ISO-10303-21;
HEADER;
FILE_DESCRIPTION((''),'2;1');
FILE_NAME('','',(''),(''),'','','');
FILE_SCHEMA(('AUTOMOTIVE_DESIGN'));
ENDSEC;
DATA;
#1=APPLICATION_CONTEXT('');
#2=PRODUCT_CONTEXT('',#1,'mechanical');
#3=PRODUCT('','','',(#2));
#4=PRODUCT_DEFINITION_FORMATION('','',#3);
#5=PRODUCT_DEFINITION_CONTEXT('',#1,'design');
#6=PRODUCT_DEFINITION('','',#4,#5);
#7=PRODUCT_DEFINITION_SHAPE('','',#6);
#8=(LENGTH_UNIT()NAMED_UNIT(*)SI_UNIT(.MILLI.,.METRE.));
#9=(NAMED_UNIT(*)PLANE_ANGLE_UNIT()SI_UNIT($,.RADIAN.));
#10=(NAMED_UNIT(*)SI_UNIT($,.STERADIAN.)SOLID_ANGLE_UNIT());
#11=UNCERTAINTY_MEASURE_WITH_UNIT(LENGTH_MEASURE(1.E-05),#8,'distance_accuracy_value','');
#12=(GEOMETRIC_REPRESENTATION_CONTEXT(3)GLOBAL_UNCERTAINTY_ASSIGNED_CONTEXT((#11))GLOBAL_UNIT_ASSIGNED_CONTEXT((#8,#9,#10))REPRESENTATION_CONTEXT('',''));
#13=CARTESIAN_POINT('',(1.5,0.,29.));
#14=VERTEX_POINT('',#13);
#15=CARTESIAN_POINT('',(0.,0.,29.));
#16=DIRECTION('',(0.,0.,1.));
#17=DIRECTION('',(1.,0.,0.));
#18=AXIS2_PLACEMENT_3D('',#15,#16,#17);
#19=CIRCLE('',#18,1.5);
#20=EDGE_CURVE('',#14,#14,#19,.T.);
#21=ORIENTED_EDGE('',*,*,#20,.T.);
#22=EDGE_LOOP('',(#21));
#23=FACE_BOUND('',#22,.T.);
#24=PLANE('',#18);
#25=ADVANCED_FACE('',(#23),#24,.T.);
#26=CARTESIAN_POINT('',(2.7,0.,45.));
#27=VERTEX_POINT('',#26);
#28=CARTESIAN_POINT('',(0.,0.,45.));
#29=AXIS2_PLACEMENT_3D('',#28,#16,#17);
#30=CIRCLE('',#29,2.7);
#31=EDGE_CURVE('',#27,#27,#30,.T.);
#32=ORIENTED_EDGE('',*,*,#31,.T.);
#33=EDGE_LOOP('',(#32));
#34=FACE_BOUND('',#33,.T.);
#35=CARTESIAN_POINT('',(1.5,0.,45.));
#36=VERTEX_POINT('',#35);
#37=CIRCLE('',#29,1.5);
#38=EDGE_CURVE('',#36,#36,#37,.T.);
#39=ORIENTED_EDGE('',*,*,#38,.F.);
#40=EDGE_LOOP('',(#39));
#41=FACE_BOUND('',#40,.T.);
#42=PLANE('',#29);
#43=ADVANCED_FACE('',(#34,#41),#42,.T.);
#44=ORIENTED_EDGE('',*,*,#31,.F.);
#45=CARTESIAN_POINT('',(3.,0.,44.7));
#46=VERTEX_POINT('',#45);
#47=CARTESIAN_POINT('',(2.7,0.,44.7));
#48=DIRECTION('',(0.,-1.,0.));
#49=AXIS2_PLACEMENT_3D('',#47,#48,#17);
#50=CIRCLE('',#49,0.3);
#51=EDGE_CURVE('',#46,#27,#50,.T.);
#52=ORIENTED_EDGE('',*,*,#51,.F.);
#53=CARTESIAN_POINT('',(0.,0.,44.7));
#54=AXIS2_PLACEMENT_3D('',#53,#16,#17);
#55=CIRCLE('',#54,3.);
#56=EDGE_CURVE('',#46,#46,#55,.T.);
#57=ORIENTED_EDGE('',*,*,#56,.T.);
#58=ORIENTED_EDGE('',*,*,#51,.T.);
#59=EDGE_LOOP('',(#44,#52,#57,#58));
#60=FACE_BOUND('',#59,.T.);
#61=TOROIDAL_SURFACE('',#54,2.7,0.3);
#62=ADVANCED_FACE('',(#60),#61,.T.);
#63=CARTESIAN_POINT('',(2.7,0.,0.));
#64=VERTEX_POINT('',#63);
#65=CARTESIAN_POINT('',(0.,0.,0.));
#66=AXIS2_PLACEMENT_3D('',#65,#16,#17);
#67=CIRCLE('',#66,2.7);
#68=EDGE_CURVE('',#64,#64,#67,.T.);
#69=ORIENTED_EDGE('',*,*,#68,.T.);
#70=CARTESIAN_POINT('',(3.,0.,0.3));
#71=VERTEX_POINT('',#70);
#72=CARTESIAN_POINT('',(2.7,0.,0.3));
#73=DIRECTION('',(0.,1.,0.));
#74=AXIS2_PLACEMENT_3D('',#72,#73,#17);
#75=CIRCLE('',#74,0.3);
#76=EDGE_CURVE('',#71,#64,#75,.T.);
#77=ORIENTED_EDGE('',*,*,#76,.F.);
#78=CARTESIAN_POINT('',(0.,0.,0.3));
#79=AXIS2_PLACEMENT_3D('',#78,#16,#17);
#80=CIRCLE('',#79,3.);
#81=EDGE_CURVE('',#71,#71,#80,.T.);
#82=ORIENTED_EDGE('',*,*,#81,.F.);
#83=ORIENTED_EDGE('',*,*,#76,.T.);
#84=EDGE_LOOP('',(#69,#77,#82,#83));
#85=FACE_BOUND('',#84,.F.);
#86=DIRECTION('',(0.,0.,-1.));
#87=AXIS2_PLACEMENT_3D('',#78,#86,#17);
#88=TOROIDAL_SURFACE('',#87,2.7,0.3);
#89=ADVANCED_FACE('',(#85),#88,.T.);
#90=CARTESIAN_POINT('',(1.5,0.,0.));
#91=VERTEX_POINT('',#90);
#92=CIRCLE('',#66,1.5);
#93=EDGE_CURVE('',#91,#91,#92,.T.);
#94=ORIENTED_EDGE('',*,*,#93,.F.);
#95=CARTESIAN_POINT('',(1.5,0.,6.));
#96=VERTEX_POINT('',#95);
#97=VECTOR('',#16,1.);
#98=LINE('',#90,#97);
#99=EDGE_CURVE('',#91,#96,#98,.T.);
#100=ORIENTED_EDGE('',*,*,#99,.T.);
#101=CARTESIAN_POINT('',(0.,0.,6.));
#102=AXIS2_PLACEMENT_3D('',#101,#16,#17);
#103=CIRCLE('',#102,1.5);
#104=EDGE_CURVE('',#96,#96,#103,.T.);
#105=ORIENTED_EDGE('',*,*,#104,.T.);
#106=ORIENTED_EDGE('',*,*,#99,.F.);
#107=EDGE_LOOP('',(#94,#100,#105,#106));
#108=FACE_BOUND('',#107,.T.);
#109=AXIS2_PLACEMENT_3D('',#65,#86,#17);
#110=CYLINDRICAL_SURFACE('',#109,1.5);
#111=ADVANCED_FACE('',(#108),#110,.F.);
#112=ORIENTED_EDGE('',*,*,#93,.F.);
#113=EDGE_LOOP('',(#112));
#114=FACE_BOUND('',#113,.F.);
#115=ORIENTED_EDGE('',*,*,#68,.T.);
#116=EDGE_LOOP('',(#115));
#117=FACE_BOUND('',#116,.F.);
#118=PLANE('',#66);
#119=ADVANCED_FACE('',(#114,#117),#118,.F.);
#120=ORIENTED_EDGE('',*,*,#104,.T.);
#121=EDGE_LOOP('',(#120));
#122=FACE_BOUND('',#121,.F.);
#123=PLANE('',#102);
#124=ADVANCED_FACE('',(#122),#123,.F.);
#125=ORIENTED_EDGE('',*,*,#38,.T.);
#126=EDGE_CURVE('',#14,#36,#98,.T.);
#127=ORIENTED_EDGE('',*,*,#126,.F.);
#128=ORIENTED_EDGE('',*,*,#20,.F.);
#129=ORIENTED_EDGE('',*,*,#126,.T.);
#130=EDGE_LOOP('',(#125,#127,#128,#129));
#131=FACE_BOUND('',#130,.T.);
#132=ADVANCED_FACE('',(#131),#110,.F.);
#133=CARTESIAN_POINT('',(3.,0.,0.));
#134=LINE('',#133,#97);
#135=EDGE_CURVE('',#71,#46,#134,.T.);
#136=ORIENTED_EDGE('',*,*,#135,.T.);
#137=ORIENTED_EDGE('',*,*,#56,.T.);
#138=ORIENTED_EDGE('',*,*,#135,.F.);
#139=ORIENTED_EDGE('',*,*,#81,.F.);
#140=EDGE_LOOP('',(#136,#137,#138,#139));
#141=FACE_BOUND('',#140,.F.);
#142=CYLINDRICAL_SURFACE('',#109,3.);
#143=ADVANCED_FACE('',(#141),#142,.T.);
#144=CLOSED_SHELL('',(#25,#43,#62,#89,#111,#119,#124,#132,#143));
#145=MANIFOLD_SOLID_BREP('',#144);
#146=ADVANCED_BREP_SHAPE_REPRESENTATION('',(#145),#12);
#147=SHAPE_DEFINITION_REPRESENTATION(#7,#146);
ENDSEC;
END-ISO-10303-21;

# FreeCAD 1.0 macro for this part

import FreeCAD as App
import Part
import Sketcher
from FreeCAD import Vector


def edges_at(feature, points):
    """Names of the edges that pass closest to the given points."""
    edges = feature.Shape.Edges
    near = lambda p: min(range(len(edges)), key=lambda i: edges[i].distToShape(Part.Vertex(*p))[0])
    return sorted({f"Edge{near(p) + 1}" for p in points})

doc = App.newDocument("Part")
body = doc.addObject("PartDesign::Body", "Body")

sketch1 = body.newObject("Sketcher::SketchObject", "Sketch")
sketch1.AttachmentSupport = (doc.getObject("XY_Plane"), [""])
sketch1.MapMode = "FlatFace"
sketch1.addGeometry([
    Part.Circle(Vector(0, 0, 0), Vector(0, 0, 1), 3),
    Part.Circle(Vector(0, 0, 0), Vector(0, 0, 1), 1.5),
], False)
sketch1.addConstraint([
    Sketcher.Constraint("Coincident", 0, 3, -1, 1),
    Sketcher.Constraint("Coincident", 1, 3, -1, 1),
    Sketcher.Constraint("Diameter", 0, 6.0),
    Sketcher.Constraint("Diameter", 1, 3.0),
])
pad1 = body.newObject("PartDesign::Pad", "Pad")
pad1.Profile = sketch1
pad1.Length = 45
doc.recompute()

fillet = body.newObject("PartDesign::Fillet", "Fillet")
fillet.Base = (pad1, edges_at(pad1, [(-3, 0, 45), (-3, 0, 0)]))
fillet.Radius = 0.3

sketch2 = body.newObject("Sketcher::SketchObject", "Sketch001")
sketch2.AttachmentSupport = (doc.getObject("XY_Plane"), [""])
sketch2.MapMode = "FlatFace"
sketch2.addGeometry(Part.Circle(Vector(0, 0, 0), Vector(0, 0, 1), 1.5), False)
sketch2.addConstraint([
    Sketcher.Constraint("Coincident", 0, 3, -1, 1),
    Sketcher.Constraint("Diameter", 0, 3.0),
])
pad2 = body.newObject("PartDesign::Pad", "Pad001")
pad2.Profile = sketch2
pad2.Length = 29

sketch3 = body.newObject("Sketcher::SketchObject", "Sketch002")
sketch3.AttachmentSupport = (doc.getObject("XY_Plane"), [""])
sketch3.MapMode = "FlatFace"
sketch3.addGeometry(Part.Circle(Vector(0, 0, 0), Vector(0, 0, 1), 1.5), False)
sketch3.addConstraint([
    Sketcher.Constraint("Coincident", 0, 3, -1, 1),
    Sketcher.Constraint("Diameter", 0, 3.0),
])
pocket1 = body.newObject("PartDesign::Pocket", "Pocket")
pocket1.Profile = sketch3
pocket1.Length = 6
pocket1.Reversed = True

doc.recompute()
